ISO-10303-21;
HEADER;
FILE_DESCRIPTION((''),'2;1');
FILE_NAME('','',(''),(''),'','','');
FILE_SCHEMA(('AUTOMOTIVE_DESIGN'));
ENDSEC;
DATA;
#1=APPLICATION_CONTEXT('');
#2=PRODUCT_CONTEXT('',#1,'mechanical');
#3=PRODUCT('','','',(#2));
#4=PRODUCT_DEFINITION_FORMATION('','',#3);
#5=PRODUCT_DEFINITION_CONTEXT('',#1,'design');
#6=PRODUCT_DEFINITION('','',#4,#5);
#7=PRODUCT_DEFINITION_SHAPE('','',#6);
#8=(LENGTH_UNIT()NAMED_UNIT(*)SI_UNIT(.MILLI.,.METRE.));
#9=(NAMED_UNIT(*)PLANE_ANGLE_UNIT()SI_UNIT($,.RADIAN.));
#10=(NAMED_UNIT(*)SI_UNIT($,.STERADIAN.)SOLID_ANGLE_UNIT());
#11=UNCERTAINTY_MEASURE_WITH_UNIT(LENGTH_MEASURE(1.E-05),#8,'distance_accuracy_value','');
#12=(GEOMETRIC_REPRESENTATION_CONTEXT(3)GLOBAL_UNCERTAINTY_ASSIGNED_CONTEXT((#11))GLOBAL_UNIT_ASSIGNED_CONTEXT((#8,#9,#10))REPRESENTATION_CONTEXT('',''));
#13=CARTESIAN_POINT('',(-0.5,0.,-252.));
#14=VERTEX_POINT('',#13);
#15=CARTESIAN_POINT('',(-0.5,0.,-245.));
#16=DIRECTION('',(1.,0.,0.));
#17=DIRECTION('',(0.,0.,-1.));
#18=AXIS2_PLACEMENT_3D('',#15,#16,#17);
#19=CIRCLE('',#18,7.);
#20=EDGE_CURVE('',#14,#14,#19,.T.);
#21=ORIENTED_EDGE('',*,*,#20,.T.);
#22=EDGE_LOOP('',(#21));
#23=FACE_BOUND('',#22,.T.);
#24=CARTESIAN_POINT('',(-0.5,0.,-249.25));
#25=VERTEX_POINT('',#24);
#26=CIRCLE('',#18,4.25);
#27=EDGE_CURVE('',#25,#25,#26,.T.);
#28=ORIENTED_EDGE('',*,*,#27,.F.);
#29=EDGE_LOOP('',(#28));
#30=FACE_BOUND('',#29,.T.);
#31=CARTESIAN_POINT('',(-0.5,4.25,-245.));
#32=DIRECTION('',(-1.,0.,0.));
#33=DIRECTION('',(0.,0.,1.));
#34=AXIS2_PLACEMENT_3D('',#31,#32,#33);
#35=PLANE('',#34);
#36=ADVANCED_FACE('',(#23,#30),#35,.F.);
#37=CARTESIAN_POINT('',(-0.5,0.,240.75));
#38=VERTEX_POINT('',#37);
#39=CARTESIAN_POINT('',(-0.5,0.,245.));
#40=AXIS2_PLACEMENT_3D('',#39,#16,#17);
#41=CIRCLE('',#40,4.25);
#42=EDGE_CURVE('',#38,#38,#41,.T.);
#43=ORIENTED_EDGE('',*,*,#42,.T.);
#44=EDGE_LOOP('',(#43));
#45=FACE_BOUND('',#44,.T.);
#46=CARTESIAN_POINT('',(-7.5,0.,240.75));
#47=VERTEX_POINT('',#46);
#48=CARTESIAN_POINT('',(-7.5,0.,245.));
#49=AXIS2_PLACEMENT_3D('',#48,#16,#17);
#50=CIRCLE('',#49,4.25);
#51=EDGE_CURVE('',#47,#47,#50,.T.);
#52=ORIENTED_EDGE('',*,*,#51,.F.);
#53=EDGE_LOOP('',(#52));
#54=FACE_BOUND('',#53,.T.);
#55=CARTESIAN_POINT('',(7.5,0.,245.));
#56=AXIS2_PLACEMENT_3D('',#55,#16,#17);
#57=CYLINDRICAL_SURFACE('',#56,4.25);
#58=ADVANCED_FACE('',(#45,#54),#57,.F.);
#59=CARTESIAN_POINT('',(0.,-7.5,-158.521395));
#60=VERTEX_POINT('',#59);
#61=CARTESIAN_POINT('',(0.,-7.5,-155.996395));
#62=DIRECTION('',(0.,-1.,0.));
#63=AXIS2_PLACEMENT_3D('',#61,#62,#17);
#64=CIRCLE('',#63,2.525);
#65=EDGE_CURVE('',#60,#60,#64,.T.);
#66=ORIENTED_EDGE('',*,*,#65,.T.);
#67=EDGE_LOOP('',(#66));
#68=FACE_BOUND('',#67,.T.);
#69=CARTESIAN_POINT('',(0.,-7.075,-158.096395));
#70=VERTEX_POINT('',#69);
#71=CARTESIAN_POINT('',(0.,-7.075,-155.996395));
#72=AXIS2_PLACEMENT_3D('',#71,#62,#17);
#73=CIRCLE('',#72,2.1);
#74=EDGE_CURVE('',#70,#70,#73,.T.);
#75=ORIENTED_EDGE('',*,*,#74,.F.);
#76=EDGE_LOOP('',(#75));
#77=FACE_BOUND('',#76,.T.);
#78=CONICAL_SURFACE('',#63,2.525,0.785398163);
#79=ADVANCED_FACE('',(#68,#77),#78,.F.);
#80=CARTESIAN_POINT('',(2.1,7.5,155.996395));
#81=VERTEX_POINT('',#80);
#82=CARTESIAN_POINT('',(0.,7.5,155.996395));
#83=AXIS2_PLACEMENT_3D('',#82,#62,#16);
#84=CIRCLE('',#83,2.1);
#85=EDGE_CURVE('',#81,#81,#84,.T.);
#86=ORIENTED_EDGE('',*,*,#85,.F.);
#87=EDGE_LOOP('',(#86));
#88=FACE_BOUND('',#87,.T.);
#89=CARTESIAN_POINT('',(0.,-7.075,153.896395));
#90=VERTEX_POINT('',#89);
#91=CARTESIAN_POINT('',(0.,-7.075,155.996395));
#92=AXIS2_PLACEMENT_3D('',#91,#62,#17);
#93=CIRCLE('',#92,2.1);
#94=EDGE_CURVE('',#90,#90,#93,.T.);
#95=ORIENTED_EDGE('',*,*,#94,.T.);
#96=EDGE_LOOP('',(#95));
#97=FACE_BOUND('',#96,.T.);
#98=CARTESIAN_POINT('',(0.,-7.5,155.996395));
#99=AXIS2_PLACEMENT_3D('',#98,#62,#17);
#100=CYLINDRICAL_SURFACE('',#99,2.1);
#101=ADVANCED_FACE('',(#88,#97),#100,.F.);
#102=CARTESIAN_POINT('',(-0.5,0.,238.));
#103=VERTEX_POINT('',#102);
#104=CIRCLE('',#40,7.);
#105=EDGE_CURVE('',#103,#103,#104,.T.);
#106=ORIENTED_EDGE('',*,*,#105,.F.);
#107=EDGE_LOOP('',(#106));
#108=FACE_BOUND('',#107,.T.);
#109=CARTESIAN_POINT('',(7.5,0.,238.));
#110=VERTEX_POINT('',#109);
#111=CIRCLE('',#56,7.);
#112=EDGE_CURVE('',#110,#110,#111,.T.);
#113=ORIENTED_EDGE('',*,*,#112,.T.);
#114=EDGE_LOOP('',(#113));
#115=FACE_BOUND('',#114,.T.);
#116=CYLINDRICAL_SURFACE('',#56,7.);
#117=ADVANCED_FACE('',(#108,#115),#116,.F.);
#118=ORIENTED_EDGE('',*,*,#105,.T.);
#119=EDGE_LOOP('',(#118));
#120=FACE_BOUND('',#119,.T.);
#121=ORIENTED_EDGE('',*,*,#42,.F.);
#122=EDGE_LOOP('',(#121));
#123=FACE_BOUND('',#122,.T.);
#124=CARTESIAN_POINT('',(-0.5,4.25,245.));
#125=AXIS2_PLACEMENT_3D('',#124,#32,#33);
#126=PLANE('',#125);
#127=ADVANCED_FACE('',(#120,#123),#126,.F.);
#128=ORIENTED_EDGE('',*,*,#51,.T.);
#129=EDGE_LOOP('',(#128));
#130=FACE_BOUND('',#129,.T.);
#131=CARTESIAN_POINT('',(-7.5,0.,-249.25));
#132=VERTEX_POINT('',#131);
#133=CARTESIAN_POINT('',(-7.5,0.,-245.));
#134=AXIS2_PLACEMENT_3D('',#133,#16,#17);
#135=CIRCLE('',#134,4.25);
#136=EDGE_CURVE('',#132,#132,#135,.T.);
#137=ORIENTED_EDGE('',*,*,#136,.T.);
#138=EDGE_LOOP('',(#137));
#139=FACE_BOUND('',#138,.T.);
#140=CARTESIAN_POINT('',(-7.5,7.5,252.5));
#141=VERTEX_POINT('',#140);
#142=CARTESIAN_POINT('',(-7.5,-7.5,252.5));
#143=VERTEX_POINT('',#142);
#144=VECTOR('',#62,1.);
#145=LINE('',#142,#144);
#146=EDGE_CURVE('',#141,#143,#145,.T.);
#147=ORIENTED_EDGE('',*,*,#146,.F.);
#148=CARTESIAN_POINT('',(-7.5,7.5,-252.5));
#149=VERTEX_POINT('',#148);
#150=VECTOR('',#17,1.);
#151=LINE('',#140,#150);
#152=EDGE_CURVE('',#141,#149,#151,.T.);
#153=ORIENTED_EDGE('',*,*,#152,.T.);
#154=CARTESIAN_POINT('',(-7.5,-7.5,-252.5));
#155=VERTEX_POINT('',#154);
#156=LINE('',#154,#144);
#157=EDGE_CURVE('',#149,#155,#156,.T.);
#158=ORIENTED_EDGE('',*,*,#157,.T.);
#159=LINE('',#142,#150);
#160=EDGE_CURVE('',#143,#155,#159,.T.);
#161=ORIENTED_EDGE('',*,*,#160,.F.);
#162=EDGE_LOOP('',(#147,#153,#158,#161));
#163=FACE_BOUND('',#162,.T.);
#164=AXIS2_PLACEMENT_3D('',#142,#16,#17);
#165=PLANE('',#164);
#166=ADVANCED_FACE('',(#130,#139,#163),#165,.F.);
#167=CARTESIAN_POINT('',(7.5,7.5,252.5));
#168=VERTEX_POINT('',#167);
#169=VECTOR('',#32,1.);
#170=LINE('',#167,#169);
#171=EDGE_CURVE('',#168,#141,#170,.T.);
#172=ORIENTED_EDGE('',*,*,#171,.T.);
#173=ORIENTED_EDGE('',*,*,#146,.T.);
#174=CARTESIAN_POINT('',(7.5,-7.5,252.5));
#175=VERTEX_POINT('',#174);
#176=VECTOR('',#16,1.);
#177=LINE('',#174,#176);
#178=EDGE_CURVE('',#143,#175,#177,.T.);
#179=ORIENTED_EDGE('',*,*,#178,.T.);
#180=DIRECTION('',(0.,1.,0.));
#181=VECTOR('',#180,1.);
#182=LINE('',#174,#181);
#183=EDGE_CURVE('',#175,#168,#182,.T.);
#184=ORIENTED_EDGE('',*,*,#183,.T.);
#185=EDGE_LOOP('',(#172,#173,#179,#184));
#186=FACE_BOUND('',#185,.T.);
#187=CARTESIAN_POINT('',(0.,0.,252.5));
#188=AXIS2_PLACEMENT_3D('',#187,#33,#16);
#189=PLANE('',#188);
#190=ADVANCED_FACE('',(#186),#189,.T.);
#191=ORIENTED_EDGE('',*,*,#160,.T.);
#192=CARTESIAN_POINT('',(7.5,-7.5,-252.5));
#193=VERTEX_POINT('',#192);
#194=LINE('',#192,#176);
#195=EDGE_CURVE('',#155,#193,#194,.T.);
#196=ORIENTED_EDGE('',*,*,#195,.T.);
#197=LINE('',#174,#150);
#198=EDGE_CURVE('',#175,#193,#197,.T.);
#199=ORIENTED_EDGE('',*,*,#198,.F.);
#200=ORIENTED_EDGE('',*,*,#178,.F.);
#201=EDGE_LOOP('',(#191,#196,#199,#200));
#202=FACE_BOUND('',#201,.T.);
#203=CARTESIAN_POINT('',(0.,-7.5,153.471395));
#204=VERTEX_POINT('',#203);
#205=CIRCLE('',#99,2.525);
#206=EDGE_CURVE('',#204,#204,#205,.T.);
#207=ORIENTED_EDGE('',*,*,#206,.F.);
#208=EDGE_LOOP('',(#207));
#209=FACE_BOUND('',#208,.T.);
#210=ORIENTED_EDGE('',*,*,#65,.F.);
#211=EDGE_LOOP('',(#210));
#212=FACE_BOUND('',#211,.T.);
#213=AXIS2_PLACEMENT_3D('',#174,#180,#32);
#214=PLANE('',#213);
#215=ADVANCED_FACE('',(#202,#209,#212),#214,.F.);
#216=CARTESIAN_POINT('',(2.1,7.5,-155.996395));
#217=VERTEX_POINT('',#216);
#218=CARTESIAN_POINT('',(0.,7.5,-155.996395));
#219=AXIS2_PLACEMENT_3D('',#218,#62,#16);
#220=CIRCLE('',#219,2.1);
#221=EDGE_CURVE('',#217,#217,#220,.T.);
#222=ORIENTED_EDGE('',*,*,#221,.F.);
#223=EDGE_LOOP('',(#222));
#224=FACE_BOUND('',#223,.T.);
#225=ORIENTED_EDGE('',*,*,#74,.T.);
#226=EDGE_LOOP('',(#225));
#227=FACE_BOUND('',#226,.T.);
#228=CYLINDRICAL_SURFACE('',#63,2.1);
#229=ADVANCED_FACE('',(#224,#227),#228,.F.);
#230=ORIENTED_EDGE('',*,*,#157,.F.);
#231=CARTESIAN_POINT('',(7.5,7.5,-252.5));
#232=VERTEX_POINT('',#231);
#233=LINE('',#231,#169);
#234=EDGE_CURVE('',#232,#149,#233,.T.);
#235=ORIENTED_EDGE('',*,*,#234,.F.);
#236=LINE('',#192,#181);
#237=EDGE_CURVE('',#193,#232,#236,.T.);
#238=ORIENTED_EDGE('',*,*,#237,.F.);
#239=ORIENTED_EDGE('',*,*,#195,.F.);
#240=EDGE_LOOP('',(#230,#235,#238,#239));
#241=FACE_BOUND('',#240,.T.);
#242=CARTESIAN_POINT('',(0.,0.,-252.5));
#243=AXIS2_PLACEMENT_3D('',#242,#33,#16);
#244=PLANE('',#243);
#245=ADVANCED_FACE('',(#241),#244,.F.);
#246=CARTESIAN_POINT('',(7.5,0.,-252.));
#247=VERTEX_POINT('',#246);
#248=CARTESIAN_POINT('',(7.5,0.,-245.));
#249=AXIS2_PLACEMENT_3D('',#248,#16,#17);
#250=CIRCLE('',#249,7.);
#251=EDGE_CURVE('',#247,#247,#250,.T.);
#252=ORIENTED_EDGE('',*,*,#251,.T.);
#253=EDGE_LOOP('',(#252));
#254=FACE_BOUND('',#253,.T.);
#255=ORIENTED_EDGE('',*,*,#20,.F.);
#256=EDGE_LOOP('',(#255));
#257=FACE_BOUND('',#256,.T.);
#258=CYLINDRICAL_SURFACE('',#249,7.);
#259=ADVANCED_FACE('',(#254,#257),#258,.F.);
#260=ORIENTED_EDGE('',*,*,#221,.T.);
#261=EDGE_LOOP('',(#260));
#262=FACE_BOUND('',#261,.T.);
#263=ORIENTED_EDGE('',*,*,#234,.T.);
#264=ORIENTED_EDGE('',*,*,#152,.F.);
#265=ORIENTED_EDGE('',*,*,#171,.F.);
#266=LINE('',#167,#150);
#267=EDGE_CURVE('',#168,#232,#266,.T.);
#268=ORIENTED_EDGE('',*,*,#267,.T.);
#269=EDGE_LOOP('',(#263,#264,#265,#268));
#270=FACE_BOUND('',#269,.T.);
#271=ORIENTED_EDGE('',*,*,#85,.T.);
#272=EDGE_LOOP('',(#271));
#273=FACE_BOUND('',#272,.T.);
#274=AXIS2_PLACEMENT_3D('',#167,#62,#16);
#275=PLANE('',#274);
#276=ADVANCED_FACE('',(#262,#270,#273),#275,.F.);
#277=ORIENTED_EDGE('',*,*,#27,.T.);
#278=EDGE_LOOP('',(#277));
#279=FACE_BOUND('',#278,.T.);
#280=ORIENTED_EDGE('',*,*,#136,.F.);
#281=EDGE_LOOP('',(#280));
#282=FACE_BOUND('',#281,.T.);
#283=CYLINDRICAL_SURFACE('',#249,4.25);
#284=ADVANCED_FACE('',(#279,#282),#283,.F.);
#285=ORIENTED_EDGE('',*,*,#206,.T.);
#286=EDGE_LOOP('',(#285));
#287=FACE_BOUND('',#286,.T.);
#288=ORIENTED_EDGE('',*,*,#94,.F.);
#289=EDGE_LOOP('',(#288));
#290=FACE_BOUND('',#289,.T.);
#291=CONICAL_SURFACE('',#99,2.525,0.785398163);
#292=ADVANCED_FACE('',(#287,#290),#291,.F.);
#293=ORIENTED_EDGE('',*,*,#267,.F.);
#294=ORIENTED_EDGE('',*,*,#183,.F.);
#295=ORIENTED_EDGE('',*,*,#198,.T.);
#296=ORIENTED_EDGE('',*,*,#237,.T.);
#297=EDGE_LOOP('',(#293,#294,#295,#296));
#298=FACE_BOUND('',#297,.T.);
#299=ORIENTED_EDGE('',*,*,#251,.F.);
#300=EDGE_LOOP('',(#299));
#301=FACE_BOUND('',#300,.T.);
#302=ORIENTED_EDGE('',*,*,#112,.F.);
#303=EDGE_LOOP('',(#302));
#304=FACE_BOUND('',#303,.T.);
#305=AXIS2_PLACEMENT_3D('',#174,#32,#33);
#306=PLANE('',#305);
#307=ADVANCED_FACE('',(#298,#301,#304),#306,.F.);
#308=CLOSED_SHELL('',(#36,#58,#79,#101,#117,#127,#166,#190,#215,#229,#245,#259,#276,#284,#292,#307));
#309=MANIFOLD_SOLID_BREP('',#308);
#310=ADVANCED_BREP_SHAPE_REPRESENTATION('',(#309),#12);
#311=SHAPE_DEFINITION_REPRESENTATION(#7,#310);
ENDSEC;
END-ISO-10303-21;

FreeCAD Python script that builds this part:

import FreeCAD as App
import Part
import Sketcher
from FreeCAD import Vector

doc = App.newDocument("Part")
body = doc.addObject("PartDesign::Body", "Body")

# Sketch on XY plane
sketch1 = doc.addObject("Sketcher::SketchObject", "Sketch")
body.addObject(sketch1)
sketch1.AttachmentSupport = (doc.XY_Plane, [""])
sketch1.MapMode = "FlatFace"
sketch1.addGeometry([
    Part.LineSegment(Vector(-7.5, 7.5, 0), Vector(-7.5, -7.5, 0)),
    Part.LineSegment(Vector(-7.5, -7.5, 0), Vector(7.5, -7.5, 0)),
    Part.LineSegment(Vector(7.5, -7.5, 0), Vector(7.5, 7.5, 0)),
    Part.LineSegment(Vector(7.5, 7.5, 0), Vector(-7.5, 7.5, 0)),
], False)
sketch1.addConstraint([
    Sketcher.Constraint("Coincident", 0, 2, 1, 1),
    Sketcher.Constraint("Coincident", 1, 2, 2, 1),
    Sketcher.Constraint("Coincident", 2, 2, 3, 1),
    Sketcher.Constraint("Coincident", 3, 2, 0, 1),
    Sketcher.Constraint("Vertical", 0),
    Sketcher.Constraint("Horizontal", 1),
    Sketcher.Constraint("Vertical", 2),
    Sketcher.Constraint("Horizontal", 3),
    Sketcher.Constraint("Symmetric", 0, 2, 2, 2, -1, 1),
    Sketcher.Constraint("Equal", 3, 0),
    Sketcher.Constraint("DistanceX", 1, 1, 1, 2, 15.0),
])
pad1 = doc.addObject("PartDesign::Pad", "Pad")
body.addObject(pad1)
pad1.Profile = sketch1
pad1.Length = 505
pad1.Midplane = True

# Sketch on YZ plane
sketch2 = doc.addObject("Sketcher::SketchObject", "Sketch001")
body.addObject(sketch2)
sketch2.AttachmentSupport = (doc.YZ_Plane, [""])
sketch2.MapMode = "FlatFace"
sketch2.AttachmentOffset = App.Placement(Vector(0, 0, 7.5), App.Rotation())
sketch2.addGeometry(Part.Circle(Vector(0, -245, 0), Vector(0, 0, 1), 4.25), False)
sketch2.addConstraint([
    Sketcher.Constraint("PointOnObject", 0, 3, -2),
    Sketcher.Constraint("Diameter", 0, 8.5),
    Sketcher.Constraint("DistanceY", 0, 3, -1, 1, 245.0),
])
doc.recompute()
hole = doc.addObject("PartDesign::Hole", "Hole")
body.addObject(hole)
hole.Profile = sketch2
hole.ThreadType = "None"
hole.Diameter = 8.5
hole.DepthType = "ThroughAll"
hole.HoleCutType = "Counterbore"
hole.HoleCutDiameter = 14
hole.HoleCutDepth = 8
doc.recompute()

mirrored = doc.addObject("PartDesign::Mirrored", "Mirrored")
body.addObject(mirrored)
mirrored.Originals = [hole]
mirrored.MirrorPlane = (doc.XY_Plane, [""])
body.Tip = mirrored

# Sketch on XZ plane
sketch3 = doc.addObject("Sketcher::SketchObject", "Sketch002")
body.addObject(sketch3)
sketch3.AttachmentSupport = (doc.XZ_Plane, [""])
sketch3.MapMode = "FlatFace"
sketch3.AttachmentOffset = App.Placement(Vector(0, 0, 7.5), App.Rotation())
sketch3.addGeometry([
    Part.Circle(Vector(0, -155.996395, 0), Vector(0, 0, 1), 2.1),
    Part.Circle(Vector(0, 155.996395, 0), Vector(0, 0, 1), 2.1),
], False)
sketch3.addConstraint([
    Sketcher.Constraint("Equal", 0, 1),
    Sketcher.Constraint("Symmetric", 0, 3, 1, 3, -1, 1),
    Sketcher.Constraint("PointOnObject", 0, 3, -2),
    Sketcher.Constraint("Diameter", 0, 4.2),
    Sketcher.Constraint("DistanceY", 0, 3, 1, 3, 311.99279),
])
doc.recompute()
hole2 = doc.addObject("PartDesign::Hole", "Hole001")
body.addObject(hole2)
hole2.Profile = sketch3
hole2.ThreadType = "None"
hole2.Diameter = 4.2
hole2.DepthType = "Dimension"
hole2.Depth = 24
hole2.DrillPoint = "Angled"
hole2.DrillPointAngle = 118
hole2.HoleCutType = "Countersink"
hole2.HoleCutDiameter = 5.05
hole2.HoleCutCountersinkAngle = 90

doc.recompute()
